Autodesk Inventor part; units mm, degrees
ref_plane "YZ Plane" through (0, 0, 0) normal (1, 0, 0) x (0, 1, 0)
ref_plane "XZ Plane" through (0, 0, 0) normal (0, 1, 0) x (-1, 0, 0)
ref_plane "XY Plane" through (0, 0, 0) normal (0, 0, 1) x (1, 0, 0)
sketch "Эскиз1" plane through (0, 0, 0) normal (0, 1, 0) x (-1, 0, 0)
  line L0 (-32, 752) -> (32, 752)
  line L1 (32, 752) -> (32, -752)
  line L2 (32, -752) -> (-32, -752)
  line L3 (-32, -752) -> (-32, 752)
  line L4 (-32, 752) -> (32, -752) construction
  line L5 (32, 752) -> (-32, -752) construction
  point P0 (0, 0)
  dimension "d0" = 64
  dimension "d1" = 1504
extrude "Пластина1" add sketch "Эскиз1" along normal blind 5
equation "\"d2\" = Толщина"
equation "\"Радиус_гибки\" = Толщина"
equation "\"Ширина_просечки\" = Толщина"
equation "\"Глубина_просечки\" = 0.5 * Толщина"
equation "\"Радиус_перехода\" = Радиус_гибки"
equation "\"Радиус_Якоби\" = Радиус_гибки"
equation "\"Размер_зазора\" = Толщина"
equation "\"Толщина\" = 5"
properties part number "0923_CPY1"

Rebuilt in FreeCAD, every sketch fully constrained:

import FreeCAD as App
import Part
import Sketcher


def add_polygon(sketch, points):
    """Adds a closed chain of lines whose ends are joined by coincident constraints."""
    first, n = sketch.GeometryCount, len(points)
    for a, b in zip(points, points[1:] + points[:1]):
        sketch.addGeometry(Part.LineSegment(App.Vector(*a, 0), App.Vector(*b, 0)), False)
    for i in range(n):
        sketch.addConstraint(Sketcher.Constraint("Coincident", first + i, 2, first + (i + 1) % n, 1))

doc = App.newDocument("Part")
body = doc.addObject("PartDesign::Body", "Body")

# Sketch on XZ plane
sketch1 = doc.addObject("Sketcher::SketchObject", "Sketch")
body.addObject(sketch1)
sketch1.AttachmentSupport = (doc.XZ_Plane, [""])
sketch1.MapMode = "FlatFace"
add_polygon(sketch1, [(-32, 752), (32, 752), (32, -752), (-32, -752)])  # lines 0-3
sketch1.addConstraint(Sketcher.Constraint("Horizontal", 0))
sketch1.addConstraint(Sketcher.Constraint("Vertical", 1))
sketch1.addConstraint(Sketcher.Constraint("Horizontal", 2))
sketch1.addConstraint(Sketcher.Constraint("Vertical", 3))
sketch1.addConstraint(Sketcher.Constraint("Symmetric", 0, 2, 2, 2, -1, 1))
sketch1.addConstraint(Sketcher.Constraint("DistanceX", 0, 1, 0, 2, 64.0))
sketch1.addConstraint(Sketcher.Constraint("DistanceY", 1, 2, 1, 1, 1504.0))
pad1 = doc.addObject("PartDesign::Pad", "Pad")
body.addObject(pad1)
pad1.Profile = sketch1
pad1.Length = 5
pad1.Reversed = True

doc.recompute()
